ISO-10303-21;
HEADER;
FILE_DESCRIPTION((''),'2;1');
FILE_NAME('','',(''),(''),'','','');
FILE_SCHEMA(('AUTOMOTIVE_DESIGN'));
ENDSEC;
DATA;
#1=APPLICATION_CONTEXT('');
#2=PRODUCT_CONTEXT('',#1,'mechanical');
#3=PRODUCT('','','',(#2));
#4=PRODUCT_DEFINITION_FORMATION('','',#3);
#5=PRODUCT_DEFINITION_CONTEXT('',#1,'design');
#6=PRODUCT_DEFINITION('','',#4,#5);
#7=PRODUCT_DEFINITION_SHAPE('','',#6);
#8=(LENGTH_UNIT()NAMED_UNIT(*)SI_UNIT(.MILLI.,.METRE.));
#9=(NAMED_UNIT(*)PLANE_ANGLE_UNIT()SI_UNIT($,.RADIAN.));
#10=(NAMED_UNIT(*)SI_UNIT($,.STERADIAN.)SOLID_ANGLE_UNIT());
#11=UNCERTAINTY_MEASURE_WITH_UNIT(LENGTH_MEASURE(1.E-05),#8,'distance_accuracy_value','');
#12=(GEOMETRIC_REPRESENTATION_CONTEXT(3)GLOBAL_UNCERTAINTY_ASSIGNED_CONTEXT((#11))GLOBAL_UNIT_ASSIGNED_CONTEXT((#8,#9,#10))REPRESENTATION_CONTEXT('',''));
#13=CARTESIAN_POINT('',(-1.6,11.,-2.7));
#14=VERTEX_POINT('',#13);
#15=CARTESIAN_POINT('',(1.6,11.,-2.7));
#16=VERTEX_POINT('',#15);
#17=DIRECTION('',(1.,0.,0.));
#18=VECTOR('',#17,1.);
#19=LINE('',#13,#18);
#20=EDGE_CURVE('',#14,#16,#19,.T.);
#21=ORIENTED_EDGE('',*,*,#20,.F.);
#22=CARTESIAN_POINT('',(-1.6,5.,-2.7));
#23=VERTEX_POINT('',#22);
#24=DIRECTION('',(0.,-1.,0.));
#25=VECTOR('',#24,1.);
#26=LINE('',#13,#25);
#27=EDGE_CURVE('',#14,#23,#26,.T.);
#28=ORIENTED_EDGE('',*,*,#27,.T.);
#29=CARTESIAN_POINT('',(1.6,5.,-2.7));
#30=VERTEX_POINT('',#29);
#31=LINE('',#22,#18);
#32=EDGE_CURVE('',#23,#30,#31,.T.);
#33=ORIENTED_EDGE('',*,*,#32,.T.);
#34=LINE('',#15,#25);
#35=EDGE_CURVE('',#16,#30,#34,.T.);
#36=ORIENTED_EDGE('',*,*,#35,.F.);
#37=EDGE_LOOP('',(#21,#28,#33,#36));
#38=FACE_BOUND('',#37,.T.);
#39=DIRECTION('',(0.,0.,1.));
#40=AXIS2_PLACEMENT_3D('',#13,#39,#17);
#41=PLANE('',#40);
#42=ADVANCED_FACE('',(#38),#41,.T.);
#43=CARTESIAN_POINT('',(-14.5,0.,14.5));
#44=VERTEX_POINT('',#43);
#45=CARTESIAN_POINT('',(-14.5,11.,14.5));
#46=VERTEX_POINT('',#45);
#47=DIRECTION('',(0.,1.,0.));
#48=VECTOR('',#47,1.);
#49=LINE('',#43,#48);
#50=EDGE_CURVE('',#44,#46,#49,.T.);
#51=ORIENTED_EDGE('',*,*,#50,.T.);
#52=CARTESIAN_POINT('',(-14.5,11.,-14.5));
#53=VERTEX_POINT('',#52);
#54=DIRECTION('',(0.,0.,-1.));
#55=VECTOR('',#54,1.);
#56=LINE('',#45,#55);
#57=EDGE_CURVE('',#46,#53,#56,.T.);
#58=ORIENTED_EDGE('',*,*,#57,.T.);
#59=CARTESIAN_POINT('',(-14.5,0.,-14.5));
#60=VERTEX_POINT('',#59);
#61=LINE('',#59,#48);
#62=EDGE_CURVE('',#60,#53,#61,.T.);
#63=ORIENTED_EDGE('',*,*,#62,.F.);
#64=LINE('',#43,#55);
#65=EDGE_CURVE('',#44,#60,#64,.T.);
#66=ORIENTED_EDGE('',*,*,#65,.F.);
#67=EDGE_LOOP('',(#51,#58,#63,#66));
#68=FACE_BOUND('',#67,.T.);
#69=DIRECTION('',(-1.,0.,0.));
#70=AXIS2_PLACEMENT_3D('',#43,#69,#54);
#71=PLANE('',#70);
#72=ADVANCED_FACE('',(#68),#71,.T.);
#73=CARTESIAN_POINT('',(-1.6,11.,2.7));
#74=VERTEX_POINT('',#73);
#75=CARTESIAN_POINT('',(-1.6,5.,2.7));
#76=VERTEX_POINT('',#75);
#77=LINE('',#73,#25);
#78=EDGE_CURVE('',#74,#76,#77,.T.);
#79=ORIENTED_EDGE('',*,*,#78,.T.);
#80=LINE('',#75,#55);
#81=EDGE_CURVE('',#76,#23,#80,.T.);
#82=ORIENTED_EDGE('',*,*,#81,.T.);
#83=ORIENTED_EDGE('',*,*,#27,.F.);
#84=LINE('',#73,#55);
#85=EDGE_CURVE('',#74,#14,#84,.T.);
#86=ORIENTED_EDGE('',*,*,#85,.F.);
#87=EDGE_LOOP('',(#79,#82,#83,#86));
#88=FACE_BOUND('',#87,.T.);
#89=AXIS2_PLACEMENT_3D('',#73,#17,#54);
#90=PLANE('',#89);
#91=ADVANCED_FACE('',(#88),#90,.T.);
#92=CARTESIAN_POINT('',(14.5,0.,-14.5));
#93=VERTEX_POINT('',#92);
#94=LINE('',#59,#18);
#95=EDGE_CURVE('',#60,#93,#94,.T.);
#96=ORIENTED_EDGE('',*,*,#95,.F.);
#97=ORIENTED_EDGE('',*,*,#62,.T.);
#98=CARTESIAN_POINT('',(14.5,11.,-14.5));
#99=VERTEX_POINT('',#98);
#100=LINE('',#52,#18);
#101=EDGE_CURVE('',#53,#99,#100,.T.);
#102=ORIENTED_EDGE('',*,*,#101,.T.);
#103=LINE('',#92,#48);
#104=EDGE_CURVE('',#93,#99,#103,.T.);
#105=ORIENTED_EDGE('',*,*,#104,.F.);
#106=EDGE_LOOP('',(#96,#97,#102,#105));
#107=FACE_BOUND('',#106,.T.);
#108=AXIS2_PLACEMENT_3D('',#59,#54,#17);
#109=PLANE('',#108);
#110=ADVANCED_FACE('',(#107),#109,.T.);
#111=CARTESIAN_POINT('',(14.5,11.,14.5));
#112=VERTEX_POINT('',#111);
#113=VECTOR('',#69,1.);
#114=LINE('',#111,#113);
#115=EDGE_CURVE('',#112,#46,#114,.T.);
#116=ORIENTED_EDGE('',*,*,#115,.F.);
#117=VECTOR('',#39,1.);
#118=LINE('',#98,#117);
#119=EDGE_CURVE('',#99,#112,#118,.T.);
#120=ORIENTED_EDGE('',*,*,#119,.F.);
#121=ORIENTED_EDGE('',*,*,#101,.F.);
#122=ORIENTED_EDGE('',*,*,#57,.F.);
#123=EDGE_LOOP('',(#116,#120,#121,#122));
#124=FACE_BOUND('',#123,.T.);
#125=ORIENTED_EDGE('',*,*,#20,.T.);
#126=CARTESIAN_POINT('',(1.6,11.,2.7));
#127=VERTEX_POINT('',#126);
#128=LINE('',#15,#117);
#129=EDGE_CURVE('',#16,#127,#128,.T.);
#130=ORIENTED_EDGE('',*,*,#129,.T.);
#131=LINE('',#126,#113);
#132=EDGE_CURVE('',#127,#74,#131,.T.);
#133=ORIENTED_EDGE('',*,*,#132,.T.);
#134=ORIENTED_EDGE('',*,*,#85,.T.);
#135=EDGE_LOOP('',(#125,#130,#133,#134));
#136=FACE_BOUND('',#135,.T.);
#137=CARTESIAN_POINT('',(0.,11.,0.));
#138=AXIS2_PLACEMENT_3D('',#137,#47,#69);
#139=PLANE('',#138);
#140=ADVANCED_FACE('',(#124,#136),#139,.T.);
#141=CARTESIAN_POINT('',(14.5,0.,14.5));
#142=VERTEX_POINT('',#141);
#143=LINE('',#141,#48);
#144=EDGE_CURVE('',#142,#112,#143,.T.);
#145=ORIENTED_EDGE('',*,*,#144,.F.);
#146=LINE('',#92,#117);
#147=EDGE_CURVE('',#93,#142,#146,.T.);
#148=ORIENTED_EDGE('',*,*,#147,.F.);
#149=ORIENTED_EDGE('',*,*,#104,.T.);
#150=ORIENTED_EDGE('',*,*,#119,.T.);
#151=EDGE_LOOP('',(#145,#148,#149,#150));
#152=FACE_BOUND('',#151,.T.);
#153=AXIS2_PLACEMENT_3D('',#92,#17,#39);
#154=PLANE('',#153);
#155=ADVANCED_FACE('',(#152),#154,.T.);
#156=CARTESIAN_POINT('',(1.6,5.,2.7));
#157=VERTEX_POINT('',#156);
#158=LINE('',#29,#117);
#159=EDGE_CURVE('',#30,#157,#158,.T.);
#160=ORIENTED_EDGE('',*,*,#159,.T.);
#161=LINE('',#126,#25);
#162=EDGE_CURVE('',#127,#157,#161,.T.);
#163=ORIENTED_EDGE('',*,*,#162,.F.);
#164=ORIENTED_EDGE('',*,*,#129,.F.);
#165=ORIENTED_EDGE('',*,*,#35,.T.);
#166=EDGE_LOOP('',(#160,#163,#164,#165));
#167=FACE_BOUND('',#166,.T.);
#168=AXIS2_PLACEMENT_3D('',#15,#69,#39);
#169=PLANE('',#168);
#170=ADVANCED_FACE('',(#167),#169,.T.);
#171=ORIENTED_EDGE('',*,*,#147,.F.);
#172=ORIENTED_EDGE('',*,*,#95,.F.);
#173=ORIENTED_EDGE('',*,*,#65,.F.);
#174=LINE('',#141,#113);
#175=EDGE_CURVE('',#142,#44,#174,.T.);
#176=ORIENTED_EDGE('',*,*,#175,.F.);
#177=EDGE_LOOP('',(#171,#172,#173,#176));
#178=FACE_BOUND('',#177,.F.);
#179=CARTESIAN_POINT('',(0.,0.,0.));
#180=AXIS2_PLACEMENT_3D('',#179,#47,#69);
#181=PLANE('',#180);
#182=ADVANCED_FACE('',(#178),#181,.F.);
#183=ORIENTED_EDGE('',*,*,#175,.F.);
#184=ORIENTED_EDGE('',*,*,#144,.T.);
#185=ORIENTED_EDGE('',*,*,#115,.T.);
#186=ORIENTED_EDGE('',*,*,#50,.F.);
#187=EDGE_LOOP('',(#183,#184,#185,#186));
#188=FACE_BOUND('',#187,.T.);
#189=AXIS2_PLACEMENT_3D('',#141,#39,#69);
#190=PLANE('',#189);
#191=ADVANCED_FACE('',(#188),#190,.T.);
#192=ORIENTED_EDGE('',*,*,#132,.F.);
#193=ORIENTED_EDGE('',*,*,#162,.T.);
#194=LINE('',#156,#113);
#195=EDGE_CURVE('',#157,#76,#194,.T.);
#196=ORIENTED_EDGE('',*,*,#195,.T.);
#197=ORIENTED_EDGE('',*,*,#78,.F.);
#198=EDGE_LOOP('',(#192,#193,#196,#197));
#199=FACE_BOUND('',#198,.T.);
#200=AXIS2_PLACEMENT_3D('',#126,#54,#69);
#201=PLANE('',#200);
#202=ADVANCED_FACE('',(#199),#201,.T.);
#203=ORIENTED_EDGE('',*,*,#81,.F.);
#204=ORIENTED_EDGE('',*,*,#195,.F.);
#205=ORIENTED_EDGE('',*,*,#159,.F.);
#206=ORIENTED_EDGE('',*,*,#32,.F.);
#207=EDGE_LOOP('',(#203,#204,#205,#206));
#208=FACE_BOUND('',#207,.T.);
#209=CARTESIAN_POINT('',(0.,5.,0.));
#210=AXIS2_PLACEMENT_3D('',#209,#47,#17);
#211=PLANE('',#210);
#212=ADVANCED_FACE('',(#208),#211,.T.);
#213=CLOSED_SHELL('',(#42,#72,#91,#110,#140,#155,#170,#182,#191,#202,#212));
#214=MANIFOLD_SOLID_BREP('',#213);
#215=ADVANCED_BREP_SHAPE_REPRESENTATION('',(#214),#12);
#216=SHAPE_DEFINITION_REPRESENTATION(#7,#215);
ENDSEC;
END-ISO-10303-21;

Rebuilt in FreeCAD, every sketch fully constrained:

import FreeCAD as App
import Part
import Sketcher
Q = App.Units.Quantity


def add_polygon(sketch, points):
    """Adds a closed chain of lines whose ends are joined by coincident constraints."""
    first, n = sketch.GeometryCount, len(points)
    for a, b in zip(points, points[1:] + points[:1]):
        sketch.addGeometry(Part.LineSegment(App.Vector(*a, 0), App.Vector(*b, 0)), False)
    for i in range(n):
        sketch.addConstraint(Sketcher.Constraint("Coincident", first + i, 2, first + (i + 1) % n, 1))

doc = App.newDocument("Part")
body = doc.addObject("PartDesign::Body", "Body")

# Sketch on XZ plane
sketch1 = body.newObject("Sketcher::SketchObject", "Sketch")
sketch1.AttachmentSupport = (doc.getObject("XZ_Plane"), [""])
sketch1.MapMode = "FlatFace"
add_polygon(sketch1, [(14.5, -14.5), (-14.5, -14.5), (-14.5, 14.5), (14.5, 14.5)])  # lines 0-3
sketch1.addConstraint(Sketcher.Constraint("Horizontal", 0))
sketch1.addConstraint(Sketcher.Constraint("Vertical", 1))
sketch1.addConstraint(Sketcher.Constraint("Horizontal", 2))
sketch1.addConstraint(Sketcher.Constraint("Vertical", 3))
sketch1.addConstraint(Sketcher.Constraint("Symmetric", 0, 2, 2, 2, -1, 1))
sketch1.addConstraint(Sketcher.Constraint("Equal", 2, 1))
sketch1.addConstraint(Sketcher.Constraint("DistanceX", 0, 2, 0, 1, Q("29 mm")))
pad1 = body.newObject("PartDesign::Pad", "Pad")
pad1.Profile = sketch1
pad1.Length = 11
pad1.Reversed = True

# Sketch on XZ plane
sketch2 = body.newObject("Sketcher::SketchObject", "Sketch001")
sketch2.AttachmentSupport = (doc.getObject("XZ_Plane"), [""])
sketch2.MapMode = "FlatFace"
sketch2.AttachmentOffset = App.Placement(App.Vector(0, 0, -11), App.Rotation())
add_polygon(sketch2, [(1.6, -2.7), (-1.6, -2.7), (-1.6, 2.7), (1.6, 2.7)])  # lines 0-3
sketch2.addConstraint(Sketcher.Constraint("Horizontal", 0))
sketch2.addConstraint(Sketcher.Constraint("Vertical", 1))
sketch2.addConstraint(Sketcher.Constraint("Horizontal", 2))
sketch2.addConstraint(Sketcher.Constraint("Vertical", 3))
sketch2.addConstraint(Sketcher.Constraint("Symmetric", 0, 2, 2, 2, -1, 1))
sketch2.addConstraint(Sketcher.Constraint("DistanceX", 0, 2, 0, 1, Q("3.2 mm")))
sketch2.addConstraint(Sketcher.Constraint("DistanceY", 0, 2, -1, 1, Q("2.7 mm")))
pocket1 = body.newObject("PartDesign::Pocket", "Pocket")
pocket1.Profile = sketch2
pocket1.Length = 6
pocket1.Reversed = True

doc.recompute()
